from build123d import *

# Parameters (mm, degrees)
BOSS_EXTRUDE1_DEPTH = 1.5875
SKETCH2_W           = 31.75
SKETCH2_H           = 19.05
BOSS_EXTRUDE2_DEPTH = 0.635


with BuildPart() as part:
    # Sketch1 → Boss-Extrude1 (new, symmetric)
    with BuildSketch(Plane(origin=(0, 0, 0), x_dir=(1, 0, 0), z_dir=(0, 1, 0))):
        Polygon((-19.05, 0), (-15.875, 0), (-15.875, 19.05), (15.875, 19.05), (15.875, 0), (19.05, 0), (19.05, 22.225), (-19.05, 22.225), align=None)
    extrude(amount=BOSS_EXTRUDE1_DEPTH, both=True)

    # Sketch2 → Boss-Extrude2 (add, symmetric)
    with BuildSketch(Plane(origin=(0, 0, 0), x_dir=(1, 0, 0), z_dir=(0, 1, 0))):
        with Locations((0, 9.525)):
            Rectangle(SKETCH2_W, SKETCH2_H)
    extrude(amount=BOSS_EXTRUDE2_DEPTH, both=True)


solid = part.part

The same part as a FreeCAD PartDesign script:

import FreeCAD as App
import Part
import Sketcher
Q = App.Units.Quantity

doc = App.newDocument("Part")
body = doc.addObject("PartDesign::Body", "Body")

sketch1 = doc.addObject("Sketcher::SketchObject", "Sketch")
body.addObject(sketch1)
sketch1.AttachmentSupport = (doc.XZ_Plane, [""])
sketch1.MapMode = "FlatFace"
sketch1.addGeometry([
    Part.LineSegment(App.Vector(-19.05, 0, 0), App.Vector(-15.875, 0, 0)),
    Part.LineSegment(App.Vector(-15.875, 0, 0), App.Vector(-15.875, -19.05, 0)),
    Part.LineSegment(App.Vector(-15.875, -19.05, 0), App.Vector(15.875, -19.05, 0)),
    Part.LineSegment(App.Vector(15.875, -19.05, 0), App.Vector(15.875, 0, 0)),
    Part.LineSegment(App.Vector(15.875, 0, 0), App.Vector(19.05, 0, 0)),
    Part.LineSegment(App.Vector(19.05, 0, 0), App.Vector(19.05, -22.225, 0)),
    Part.LineSegment(App.Vector(19.05, -22.225, 0), App.Vector(-19.05, -22.225, 0)),
    Part.LineSegment(App.Vector(-19.05, -22.225, 0), App.Vector(-19.05, 0, 0)),
], False)
sketch1.addConstraint([
    Sketcher.Constraint("Coincident", 0, 2, 1, 1),
    Sketcher.Constraint("Coincident", 1, 2, 2, 1),
    Sketcher.Constraint("Coincident", 2, 2, 3, 1),
    Sketcher.Constraint("Coincident", 3, 2, 4, 1),
    Sketcher.Constraint("Coincident", 4, 2, 5, 1),
    Sketcher.Constraint("Coincident", 5, 2, 6, 1),
    Sketcher.Constraint("Coincident", 6, 2, 7, 1),
    Sketcher.Constraint("Coincident", 7, 2, 0, 1),
    Sketcher.Constraint("Horizontal", 0),
    Sketcher.Constraint("Vertical", 1),
    Sketcher.Constraint("Horizontal", 2),
    Sketcher.Constraint("Vertical", 3),
    Sketcher.Constraint("Horizontal", 4),
    Sketcher.Constraint("Vertical", 5),
    Sketcher.Constraint("Horizontal", 6),
    Sketcher.Constraint("Vertical", 7),
    Sketcher.Constraint("Symmetric", 0, 2, 3, 2, -1, 1),
    Sketcher.Constraint("Symmetric", 4, 2, 7, 2, -2),
    Sketcher.Constraint("DistanceX", 6, 2, 6, 1, Q("1.5 in")),
    Sketcher.Constraint("DistanceX", 2, 1, 2, 2, Q("1.25 in")),
    Sketcher.Constraint("DistanceY", 1, 2, 1, 1, Q("0.75 in")),
    Sketcher.Constraint("DistanceY", 5, 2, 5, 1, Q("0.875 in")),
])
pad1 = doc.addObject("PartDesign::Pad", "Pad")
body.addObject(pad1)
pad1.Profile = sketch1
pad1.Length = Q("0.125 in")
pad1.Midplane = True

sketch2 = doc.addObject("Sketcher::SketchObject", "Sketch001")
body.addObject(sketch2)
sketch2.AttachmentSupport = (doc.XZ_Plane, [""])
sketch2.MapMode = "FlatFace"
sketch2.addGeometry([
    Part.LineSegment(App.Vector(-15.875, -19.05, 0), App.Vector(-15.875, 0, 0)),
    Part.LineSegment(App.Vector(-15.875, 0, 0), App.Vector(15.875, 0, 0)),
    Part.LineSegment(App.Vector(15.875, 0, 0), App.Vector(15.875, -19.05, 0)),
    Part.LineSegment(App.Vector(15.875, -19.05, 0), App.Vector(-15.875, -19.05, 0)),
], False)
sketch2.addConstraint([
    Sketcher.Constraint("Coincident", 0, 2, 1, 1),
    Sketcher.Constraint("Coincident", 1, 2, 2, 1),
    Sketcher.Constraint("Coincident", 2, 2, 3, 1),
    Sketcher.Constraint("Coincident", 3, 2, 0, 1),
    Sketcher.Constraint("Vertical", 0),
    Sketcher.Constraint("Horizontal", 1),
    Sketcher.Constraint("Vertical", 2),
    Sketcher.Constraint("Horizontal", 3),
    Sketcher.Constraint("Symmetric", 0, 2, 1, 2, -1, 1),
    Sketcher.Constraint("DistanceX", 1, 1, 1, 2, Q("1.25 in")),
    Sketcher.Constraint("DistanceY", 0, 1, 0, 2, Q("0.75 in")),
])
pad2 = doc.addObject("PartDesign::Pad", "Pad001")
body.addObject(pad2)
pad2.Profile = sketch2
pad2.Length = Q("0.05 in")
pad2.Midplane = True

doc.recompute()
